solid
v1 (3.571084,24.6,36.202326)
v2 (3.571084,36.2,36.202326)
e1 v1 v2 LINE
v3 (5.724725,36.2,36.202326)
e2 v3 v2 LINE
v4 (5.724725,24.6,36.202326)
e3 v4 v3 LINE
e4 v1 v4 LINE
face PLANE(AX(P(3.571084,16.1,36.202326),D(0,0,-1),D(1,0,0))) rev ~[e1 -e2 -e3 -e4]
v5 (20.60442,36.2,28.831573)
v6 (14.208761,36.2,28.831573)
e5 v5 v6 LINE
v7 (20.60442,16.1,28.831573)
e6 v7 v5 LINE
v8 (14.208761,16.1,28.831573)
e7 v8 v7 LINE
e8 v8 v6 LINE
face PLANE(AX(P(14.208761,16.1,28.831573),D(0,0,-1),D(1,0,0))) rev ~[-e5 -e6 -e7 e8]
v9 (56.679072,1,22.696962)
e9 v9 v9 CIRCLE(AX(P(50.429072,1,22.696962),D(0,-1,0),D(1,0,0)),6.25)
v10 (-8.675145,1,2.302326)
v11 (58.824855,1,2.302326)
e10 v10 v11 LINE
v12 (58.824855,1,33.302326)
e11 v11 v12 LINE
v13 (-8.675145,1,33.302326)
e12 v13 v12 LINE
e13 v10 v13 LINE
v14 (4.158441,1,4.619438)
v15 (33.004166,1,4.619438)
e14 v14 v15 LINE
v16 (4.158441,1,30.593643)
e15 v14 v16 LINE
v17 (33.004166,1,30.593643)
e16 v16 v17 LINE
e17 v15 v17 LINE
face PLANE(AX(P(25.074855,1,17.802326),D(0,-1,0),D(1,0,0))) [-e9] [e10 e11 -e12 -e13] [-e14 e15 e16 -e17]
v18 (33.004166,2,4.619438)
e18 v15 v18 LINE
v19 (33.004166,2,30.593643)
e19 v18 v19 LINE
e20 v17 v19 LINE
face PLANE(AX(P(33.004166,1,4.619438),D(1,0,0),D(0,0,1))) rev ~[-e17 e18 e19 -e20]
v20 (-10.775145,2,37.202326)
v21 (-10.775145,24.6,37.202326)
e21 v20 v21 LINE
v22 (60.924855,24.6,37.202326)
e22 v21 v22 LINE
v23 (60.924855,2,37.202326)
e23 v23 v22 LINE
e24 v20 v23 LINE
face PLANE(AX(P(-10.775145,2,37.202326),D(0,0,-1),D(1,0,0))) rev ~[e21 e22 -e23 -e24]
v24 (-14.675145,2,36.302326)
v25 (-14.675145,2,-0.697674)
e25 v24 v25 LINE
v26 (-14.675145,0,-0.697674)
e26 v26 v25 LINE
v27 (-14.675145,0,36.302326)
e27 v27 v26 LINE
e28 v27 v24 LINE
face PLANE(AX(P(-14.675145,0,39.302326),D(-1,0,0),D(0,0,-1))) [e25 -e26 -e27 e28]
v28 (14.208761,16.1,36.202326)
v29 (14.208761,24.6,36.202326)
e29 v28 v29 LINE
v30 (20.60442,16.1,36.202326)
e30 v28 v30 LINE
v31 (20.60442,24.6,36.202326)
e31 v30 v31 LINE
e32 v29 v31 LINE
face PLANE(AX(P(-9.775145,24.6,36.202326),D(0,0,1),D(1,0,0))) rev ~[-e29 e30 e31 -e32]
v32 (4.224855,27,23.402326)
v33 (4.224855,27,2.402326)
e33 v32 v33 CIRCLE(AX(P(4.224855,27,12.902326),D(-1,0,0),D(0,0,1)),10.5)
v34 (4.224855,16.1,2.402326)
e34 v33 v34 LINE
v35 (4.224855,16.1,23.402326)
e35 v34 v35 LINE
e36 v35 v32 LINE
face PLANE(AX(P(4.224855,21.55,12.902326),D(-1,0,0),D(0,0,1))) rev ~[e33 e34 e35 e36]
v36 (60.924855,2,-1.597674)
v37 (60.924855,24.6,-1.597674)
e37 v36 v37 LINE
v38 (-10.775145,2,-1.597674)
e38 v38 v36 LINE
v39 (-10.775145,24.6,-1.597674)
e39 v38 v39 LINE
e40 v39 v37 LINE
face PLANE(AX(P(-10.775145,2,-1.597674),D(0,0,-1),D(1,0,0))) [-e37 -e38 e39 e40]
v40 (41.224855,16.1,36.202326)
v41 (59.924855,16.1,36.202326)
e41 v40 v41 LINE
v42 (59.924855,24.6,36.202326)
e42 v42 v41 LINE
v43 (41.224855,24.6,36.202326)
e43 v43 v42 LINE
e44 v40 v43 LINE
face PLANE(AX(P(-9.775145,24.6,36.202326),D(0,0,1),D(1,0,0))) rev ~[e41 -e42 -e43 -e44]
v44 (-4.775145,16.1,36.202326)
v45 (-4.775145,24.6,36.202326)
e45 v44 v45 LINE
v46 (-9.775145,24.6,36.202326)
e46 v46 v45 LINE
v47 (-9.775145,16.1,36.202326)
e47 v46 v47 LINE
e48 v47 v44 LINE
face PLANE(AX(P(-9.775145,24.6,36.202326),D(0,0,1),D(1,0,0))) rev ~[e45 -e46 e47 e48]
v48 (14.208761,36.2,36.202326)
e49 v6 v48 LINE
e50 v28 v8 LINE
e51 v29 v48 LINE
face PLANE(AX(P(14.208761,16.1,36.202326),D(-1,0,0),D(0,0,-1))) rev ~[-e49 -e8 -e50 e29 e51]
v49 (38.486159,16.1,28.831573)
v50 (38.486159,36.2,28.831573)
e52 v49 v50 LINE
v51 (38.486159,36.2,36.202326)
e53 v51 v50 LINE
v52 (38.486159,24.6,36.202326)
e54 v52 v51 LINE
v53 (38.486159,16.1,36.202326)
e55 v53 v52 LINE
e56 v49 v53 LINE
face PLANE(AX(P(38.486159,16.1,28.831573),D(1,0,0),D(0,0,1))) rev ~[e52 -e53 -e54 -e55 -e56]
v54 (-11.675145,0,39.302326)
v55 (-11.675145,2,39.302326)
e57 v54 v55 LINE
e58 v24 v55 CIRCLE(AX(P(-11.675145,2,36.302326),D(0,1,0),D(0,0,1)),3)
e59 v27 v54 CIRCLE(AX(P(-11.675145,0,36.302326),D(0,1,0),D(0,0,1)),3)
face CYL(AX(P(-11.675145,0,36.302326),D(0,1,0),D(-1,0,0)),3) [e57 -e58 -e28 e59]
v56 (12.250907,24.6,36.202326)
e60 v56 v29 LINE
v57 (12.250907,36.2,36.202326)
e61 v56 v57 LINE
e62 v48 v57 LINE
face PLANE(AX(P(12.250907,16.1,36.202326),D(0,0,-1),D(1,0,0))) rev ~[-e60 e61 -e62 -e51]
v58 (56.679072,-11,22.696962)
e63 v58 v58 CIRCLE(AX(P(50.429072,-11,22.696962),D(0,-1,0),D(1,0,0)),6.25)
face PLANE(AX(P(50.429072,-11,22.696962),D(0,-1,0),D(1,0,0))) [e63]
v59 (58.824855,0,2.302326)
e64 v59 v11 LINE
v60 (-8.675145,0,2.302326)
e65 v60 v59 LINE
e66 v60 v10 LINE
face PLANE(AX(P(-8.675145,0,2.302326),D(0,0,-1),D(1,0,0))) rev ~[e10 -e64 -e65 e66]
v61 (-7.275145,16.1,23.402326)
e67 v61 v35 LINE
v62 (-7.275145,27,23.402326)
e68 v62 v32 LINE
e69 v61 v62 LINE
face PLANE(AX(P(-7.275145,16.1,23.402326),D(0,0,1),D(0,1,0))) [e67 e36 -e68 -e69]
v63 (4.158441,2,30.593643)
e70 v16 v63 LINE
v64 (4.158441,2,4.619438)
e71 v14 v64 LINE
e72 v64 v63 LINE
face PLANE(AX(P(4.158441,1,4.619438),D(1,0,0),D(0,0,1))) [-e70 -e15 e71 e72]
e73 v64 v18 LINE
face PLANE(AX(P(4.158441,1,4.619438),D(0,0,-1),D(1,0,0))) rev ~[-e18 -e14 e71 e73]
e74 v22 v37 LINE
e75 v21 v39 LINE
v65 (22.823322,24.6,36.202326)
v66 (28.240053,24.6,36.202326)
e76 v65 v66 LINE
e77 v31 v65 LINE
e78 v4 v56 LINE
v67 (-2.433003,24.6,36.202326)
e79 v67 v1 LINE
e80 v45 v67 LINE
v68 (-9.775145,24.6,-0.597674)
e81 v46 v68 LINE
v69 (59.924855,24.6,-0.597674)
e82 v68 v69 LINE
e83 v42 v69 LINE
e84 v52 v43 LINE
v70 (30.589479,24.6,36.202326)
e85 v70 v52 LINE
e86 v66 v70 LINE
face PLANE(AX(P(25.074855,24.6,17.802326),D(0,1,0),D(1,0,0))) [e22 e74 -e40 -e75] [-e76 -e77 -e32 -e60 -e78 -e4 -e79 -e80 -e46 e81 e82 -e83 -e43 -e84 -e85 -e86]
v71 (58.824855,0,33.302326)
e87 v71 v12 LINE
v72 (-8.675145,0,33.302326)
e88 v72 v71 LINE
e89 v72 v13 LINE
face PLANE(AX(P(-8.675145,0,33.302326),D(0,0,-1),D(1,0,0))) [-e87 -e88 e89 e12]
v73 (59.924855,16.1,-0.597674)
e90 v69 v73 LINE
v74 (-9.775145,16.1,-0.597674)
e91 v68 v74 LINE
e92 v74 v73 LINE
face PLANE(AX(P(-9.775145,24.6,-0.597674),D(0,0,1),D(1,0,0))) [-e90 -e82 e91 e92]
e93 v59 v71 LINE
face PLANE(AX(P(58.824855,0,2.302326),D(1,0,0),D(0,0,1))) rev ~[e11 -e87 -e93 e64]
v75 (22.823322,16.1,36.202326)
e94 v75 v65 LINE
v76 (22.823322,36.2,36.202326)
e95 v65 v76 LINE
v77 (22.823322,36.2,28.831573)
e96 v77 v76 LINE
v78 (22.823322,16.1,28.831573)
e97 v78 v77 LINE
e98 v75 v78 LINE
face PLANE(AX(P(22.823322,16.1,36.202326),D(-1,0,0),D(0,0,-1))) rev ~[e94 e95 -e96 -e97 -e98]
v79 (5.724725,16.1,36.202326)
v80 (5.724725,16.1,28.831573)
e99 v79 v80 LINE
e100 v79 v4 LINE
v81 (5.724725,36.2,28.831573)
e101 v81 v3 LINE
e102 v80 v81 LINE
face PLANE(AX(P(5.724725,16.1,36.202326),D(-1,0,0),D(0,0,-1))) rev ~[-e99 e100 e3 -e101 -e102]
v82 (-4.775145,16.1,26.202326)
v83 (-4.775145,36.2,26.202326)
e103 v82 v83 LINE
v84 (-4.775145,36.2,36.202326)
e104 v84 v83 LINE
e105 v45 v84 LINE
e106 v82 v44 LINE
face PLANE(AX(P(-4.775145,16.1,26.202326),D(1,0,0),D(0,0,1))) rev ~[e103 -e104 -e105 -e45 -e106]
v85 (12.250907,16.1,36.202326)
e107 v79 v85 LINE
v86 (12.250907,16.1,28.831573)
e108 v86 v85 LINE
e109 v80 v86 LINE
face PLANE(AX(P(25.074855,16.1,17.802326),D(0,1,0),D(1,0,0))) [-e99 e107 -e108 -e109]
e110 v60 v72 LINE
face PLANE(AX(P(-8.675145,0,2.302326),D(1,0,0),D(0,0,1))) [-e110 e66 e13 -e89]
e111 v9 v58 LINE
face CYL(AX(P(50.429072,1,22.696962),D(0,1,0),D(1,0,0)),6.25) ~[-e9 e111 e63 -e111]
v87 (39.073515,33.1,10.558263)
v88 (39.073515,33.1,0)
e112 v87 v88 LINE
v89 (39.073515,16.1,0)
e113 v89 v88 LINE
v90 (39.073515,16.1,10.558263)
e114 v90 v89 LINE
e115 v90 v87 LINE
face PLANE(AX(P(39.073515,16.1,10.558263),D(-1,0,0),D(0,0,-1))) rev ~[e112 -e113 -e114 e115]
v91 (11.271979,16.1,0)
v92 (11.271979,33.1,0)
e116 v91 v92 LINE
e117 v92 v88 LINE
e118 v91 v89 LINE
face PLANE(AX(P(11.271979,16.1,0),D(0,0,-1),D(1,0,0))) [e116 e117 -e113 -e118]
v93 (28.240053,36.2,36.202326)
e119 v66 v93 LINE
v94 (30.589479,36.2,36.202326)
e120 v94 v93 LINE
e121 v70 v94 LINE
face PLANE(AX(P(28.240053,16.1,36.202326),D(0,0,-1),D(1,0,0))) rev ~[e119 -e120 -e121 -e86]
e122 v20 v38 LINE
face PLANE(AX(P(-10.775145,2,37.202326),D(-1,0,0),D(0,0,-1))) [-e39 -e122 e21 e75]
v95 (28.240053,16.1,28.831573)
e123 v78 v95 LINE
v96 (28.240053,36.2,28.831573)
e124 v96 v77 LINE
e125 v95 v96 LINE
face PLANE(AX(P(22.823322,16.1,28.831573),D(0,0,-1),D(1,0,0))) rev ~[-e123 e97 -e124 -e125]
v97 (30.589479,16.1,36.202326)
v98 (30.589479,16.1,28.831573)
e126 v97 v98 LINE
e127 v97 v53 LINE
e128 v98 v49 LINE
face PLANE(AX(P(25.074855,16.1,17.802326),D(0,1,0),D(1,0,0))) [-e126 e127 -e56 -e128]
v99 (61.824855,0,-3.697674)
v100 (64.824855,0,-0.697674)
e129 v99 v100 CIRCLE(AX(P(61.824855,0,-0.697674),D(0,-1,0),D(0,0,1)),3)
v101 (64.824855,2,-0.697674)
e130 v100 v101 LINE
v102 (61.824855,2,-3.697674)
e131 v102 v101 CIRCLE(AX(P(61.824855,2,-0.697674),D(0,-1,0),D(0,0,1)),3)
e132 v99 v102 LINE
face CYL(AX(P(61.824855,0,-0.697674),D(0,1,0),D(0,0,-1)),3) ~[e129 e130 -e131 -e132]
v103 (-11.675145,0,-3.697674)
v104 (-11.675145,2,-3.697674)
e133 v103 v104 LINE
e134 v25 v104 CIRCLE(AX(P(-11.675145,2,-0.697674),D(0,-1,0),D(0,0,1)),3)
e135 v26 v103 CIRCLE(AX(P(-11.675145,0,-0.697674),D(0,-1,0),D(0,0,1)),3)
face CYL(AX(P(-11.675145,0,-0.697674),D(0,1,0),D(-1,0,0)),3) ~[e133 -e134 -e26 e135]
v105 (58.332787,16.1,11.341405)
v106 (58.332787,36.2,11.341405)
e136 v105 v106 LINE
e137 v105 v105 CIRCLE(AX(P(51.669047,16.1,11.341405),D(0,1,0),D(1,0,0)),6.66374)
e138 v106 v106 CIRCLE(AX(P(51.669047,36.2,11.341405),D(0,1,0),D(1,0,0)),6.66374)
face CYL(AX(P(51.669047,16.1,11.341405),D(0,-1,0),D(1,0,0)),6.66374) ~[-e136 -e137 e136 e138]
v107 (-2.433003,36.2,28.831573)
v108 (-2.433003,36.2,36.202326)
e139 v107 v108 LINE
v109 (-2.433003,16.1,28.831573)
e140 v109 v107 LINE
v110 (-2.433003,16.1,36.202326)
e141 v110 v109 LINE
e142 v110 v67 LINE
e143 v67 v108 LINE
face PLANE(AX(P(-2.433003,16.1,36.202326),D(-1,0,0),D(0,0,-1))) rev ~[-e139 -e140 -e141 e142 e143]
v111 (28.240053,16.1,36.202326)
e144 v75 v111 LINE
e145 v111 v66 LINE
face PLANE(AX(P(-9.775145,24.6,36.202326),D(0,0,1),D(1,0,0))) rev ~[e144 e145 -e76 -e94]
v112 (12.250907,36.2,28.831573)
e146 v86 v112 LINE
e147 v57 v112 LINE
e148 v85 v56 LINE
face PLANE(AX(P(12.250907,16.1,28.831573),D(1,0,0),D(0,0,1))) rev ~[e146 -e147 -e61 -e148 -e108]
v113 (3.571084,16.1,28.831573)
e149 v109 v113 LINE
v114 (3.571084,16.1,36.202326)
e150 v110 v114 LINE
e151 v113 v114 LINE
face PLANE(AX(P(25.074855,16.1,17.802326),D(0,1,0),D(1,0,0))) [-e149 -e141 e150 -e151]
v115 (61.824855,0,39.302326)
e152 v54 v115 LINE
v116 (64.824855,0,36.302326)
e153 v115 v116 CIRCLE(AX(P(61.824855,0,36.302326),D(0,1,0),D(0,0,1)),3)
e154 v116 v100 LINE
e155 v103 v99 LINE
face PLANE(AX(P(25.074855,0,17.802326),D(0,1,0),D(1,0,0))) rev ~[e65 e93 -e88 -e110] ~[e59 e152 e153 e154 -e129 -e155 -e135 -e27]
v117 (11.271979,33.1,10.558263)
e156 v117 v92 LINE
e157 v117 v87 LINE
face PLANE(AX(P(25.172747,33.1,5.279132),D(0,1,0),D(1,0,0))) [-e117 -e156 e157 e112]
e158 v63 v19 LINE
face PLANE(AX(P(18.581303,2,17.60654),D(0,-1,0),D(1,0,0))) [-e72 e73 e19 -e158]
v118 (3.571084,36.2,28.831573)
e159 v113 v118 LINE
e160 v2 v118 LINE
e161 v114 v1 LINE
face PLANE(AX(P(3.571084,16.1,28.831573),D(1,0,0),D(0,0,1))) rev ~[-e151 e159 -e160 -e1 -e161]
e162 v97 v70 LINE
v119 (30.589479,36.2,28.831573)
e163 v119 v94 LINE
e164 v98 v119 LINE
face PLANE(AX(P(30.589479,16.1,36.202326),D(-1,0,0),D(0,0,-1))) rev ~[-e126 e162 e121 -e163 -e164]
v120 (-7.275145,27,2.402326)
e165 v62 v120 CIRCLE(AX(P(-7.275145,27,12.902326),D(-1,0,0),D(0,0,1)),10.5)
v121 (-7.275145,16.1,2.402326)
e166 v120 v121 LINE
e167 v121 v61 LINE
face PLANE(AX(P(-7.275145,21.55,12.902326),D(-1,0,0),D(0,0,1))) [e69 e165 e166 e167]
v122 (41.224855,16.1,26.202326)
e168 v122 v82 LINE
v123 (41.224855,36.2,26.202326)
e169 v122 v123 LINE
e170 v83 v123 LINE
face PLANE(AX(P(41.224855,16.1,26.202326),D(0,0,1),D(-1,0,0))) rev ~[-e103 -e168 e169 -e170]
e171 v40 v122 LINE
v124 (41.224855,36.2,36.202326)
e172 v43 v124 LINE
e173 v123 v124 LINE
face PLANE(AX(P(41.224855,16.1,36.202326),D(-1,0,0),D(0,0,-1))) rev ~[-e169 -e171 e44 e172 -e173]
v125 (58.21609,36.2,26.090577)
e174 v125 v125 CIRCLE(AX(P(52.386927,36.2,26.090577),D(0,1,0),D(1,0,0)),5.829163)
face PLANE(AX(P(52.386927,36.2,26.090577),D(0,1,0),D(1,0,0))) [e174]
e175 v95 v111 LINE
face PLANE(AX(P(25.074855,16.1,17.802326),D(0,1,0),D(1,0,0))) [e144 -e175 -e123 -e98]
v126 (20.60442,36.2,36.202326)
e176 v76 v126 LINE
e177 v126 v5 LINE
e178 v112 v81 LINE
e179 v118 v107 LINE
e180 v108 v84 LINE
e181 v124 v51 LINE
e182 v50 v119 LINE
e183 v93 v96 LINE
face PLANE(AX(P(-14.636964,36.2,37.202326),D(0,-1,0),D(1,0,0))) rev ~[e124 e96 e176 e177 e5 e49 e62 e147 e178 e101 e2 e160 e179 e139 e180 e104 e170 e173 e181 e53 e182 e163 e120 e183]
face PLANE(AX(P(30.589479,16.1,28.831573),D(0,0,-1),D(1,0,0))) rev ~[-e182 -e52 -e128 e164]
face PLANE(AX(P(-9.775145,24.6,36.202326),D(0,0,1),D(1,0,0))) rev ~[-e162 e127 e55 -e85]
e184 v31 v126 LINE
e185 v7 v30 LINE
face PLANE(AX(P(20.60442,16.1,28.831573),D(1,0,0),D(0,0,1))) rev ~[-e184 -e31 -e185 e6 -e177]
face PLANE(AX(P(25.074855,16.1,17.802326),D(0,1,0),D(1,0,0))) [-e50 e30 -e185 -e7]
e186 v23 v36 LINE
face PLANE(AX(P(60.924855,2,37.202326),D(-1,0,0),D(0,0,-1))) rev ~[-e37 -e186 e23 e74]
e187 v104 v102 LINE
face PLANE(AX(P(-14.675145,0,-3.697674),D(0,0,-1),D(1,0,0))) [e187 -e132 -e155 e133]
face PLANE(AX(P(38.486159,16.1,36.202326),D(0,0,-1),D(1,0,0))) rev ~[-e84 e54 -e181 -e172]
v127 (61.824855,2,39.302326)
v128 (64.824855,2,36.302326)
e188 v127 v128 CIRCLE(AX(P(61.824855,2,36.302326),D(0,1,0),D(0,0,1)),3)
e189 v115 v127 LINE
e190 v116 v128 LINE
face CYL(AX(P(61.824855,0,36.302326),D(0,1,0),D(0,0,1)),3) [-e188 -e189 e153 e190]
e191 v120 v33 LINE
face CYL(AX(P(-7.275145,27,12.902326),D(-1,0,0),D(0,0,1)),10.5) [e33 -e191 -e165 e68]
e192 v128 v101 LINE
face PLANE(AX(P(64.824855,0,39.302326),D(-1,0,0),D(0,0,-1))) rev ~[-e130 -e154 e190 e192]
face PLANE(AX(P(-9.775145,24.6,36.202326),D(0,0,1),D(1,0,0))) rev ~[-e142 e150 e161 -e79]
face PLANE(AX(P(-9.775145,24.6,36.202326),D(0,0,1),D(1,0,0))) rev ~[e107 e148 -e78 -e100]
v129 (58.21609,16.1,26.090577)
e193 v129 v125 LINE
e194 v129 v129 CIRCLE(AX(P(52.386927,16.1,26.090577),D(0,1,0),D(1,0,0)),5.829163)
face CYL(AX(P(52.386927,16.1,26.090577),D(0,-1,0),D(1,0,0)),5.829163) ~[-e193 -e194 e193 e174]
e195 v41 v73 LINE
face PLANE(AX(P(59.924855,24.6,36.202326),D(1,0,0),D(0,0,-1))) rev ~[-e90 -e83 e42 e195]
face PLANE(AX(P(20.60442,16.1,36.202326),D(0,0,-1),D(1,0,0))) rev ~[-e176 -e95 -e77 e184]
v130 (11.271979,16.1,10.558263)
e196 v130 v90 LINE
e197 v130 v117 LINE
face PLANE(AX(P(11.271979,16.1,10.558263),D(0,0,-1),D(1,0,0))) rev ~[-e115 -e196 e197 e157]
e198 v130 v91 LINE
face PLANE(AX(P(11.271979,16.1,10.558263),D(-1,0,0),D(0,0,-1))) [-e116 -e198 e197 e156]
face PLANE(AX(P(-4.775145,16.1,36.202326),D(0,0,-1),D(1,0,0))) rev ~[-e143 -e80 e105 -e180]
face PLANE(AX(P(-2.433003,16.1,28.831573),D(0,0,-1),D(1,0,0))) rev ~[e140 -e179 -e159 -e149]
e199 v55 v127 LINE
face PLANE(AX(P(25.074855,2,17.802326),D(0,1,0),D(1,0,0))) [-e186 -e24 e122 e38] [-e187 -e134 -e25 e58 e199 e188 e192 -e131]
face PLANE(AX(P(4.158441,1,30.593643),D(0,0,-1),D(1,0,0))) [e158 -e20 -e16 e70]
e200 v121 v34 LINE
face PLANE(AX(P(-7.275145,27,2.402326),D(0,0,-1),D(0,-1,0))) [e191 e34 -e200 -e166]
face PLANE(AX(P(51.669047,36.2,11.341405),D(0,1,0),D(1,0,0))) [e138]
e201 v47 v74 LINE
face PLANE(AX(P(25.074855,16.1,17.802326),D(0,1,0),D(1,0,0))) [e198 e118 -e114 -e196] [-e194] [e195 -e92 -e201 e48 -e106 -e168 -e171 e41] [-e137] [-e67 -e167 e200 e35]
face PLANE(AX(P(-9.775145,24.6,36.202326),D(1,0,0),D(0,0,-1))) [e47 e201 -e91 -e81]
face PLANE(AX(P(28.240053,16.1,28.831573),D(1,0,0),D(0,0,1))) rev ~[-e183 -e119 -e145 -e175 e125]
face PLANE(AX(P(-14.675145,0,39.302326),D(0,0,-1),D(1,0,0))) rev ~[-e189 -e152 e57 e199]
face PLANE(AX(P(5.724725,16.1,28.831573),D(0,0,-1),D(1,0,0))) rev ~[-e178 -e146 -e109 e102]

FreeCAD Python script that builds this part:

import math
import FreeCAD as App
import Part
import Sketcher
from FreeCAD import Vector
Q = App.Units.Quantity


def edges_at(feature, points):
    """Names of the edges that pass closest to the given points."""
    edges = feature.Shape.Edges
    near = lambda p: min(range(len(edges)), key=lambda i: edges[i].distToShape(Part.Vertex(*p))[0])
    return sorted({f"Edge{near(p) + 1}" for p in points})

doc = App.newDocument("Part")
body = doc.addObject("PartDesign::Body", "Body")

# Sketch on XZ plane
sketch1 = body.newObject("Sketcher::SketchObject", "Sketch")
sketch1.AttachmentSupport = (doc.getObject("XZ_Plane"), [""])
sketch1.MapMode = "FlatFace"
sketch1.addGeometry(Part.LineSegment(Vector(-14.675145, -3.697674, 0), Vector(-14.675145, 39.302326, 0)), False)
sketch1.addGeometry(Part.LineSegment(Vector(-14.675145, 39.302326, 0), Vector(64.824855, 39.302326, 0)), False)
sketch1.addGeometry(Part.LineSegment(Vector(64.824855, 39.302326, 0), Vector(64.824855, -3.697674, 0)), False)
sketch1.addGeometry(Part.LineSegment(Vector(64.824855, -3.697674, 0), Vector(-14.675145, -3.697674, 0)), False)
sketch1.addConstraint(Sketcher.Constraint("Coincident", 0, 2, 1, 1))
sketch1.addConstraint(Sketcher.Constraint("Coincident", 1, 2, 2, 1))
sketch1.addConstraint(Sketcher.Constraint("Coincident", 2, 2, 3, 1))
sketch1.addConstraint(Sketcher.Constraint("Coincident", 3, 2, 0, 1))
sketch1.addConstraint(Sketcher.Constraint("Vertical", 0))
sketch1.addConstraint(Sketcher.Constraint("Horizontal", 1))
sketch1.addConstraint(Sketcher.Constraint("Vertical", 2))
sketch1.addConstraint(Sketcher.Constraint("Horizontal", 3))
sketch1.addConstraint(Sketcher.Constraint("DistanceY", 0, 1, 0, 2, Q("43 mm")))
sketch1.addConstraint(Sketcher.Constraint("DistanceX", 1, 1, 1, 2, Q("79.5 mm")))
sketch1.addConstraint(Sketcher.Constraint("DistanceX", 0, 2, -1, 1, Q("14.675145 mm")))
sketch1.addConstraint(Sketcher.Constraint("DistanceY", -1, 1, 0, 2, Q("39.302326 mm")))
pad1 = body.newObject("PartDesign::Pad", "Pad")
pad1.Profile = sketch1
pad1.Length = 2
pad1.Reversed = True

# Sketch on XZ plane
sketch2 = body.newObject("Sketcher::SketchObject", "Sketch001")
sketch2.AttachmentSupport = (doc.getObject("XZ_Plane"), [""])
sketch2.MapMode = "FlatFace"
sketch2.AttachmentOffset = App.Placement(Vector(0, 0, -2), App.Rotation())
sketch2.addGeometry(Part.LineSegment(Vector(-10.775145, -1.597674, 0), Vector(-10.775145, 37.202326, 0)), False)
sketch2.addGeometry(Part.LineSegment(Vector(-10.775145, 37.202326, 0), Vector(60.924855, 37.202326, 0)), False)
sketch2.addGeometry(Part.LineSegment(Vector(60.924855, 37.202326, 0), Vector(60.924855, -1.597674, 0)), False)
sketch2.addGeometry(Part.LineSegment(Vector(60.924855, -1.597674, 0), Vector(-10.775145, -1.597674, 0)), False)
sketch2.addConstraint(Sketcher.Constraint("Coincident", 0, 2, 1, 1))
sketch2.addConstraint(Sketcher.Constraint("Coincident", 1, 2, 2, 1))
sketch2.addConstraint(Sketcher.Constraint("Coincident", 2, 2, 3, 1))
sketch2.addConstraint(Sketcher.Constraint("Coincident", 3, 2, 0, 1))
sketch2.addConstraint(Sketcher.Constraint("Vertical", 0))
sketch2.addConstraint(Sketcher.Constraint("Horizontal", 1))
sketch2.addConstraint(Sketcher.Constraint("Vertical", 2))
sketch2.addConstraint(Sketcher.Constraint("Horizontal", 3))
sketch2.addConstraint(Sketcher.Constraint("DistanceX", 1, 1, 1, 2, Q("71.7 mm")))
sketch2.addConstraint(Sketcher.Constraint("DistanceY", 0, 1, 0, 2, Q("38.8 mm")))
sketch2.addConstraint(Sketcher.Constraint("DistanceX", 0, 2, -1, 1, Q("10.775145 mm")))
sketch2.addConstraint(Sketcher.Constraint("DistanceY", -1, 1, 0, 2, Q("37.202326 mm")))
pad2 = body.newObject("PartDesign::Pad", "Pad001")
pad2.Profile = sketch2
pad2.Length = 22.6
pad2.Reversed = True

# Sketch on XZ plane
sketch3 = body.newObject("Sketcher::SketchObject", "Sketch002")
sketch3.AttachmentSupport = (doc.getObject("XZ_Plane"), [""])
sketch3.MapMode = "FlatFace"
sketch3.AttachmentOffset = App.Placement(Vector(0, 0, -24.6), App.Rotation())
sketch3.addGeometry(Part.LineSegment(Vector(-9.775145, -0.597674, 0), Vector(-9.775145, 36.202326, 0)), False)
sketch3.addGeometry(Part.LineSegment(Vector(-9.775145, 36.202326, 0), Vector(59.924855, 36.202326, 0)), False)
sketch3.addGeometry(Part.LineSegment(Vector(59.924855, 36.202326, 0), Vector(59.924855, -0.597674, 0)), False)
sketch3.addGeometry(Part.LineSegment(Vector(59.924855, -0.597674, 0), Vector(-9.775145, -0.597674, 0)), False)
sketch3.addConstraint(Sketcher.Constraint("Coincident", 0, 2, 1, 1))
sketch3.addConstraint(Sketcher.Constraint("Coincident", 1, 2, 2, 1))
sketch3.addConstraint(Sketcher.Constraint("Coincident", 2, 2, 3, 1))
sketch3.addConstraint(Sketcher.Constraint("Coincident", 3, 2, 0, 1))
sketch3.addConstraint(Sketcher.Constraint("Vertical", 0))
sketch3.addConstraint(Sketcher.Constraint("Horizontal", 1))
sketch3.addConstraint(Sketcher.Constraint("Vertical", 2))
sketch3.addConstraint(Sketcher.Constraint("Horizontal", 3))
sketch3.addConstraint(Sketcher.Constraint("DistanceX", 1, 1, 1, 2, Q("69.7 mm")))
sketch3.addConstraint(Sketcher.Constraint("DistanceY", 0, 1, 0, 2, Q("36.8 mm")))
sketch3.addConstraint(Sketcher.Constraint("DistanceX", 0, 2, -1, 1, Q("9.775145 mm")))
sketch3.addConstraint(Sketcher.Constraint("DistanceY", -1, 1, 0, 2, Q("36.202326 mm")))
pocket1 = body.newObject("PartDesign::Pocket", "Pocket")
pocket1.Profile = sketch3
pocket1.Length = 8.5
pocket1.Reversed = True

# Sketch on XZ plane
sketch4 = body.newObject("Sketcher::SketchObject", "Sketch003")
sketch4.AttachmentSupport = (doc.getObject("XZ_Plane"), [""])
sketch4.MapMode = "FlatFace"
sketch4.AttachmentOffset = App.Placement(Vector(0, 0, -16.1), App.Rotation())
sketch4.addGeometry(Part.LineSegment(Vector(41.224855, 26.202326, 0), Vector(-4.775145, 26.202326, 0)), False)
sketch4.addGeometry(Part.LineSegment(Vector(-4.775145, 26.202326, 0), Vector(-4.775145, 36.202326, 0)), False)
sketch4.addGeometry(Part.LineSegment(Vector(-4.775145, 36.202326, 0), Vector(-2.433003, 36.202326, 0)), False)
sketch4.addGeometry(Part.LineSegment(Vector(-2.433003, 36.202326, 0), Vector(-2.433003, 28.831573, 0)), False)
sketch4.addGeometry(Part.LineSegment(Vector(-2.433003, 28.831573, 0), Vector(3.571084, 28.831573, 0)), False)
sketch4.addGeometry(Part.LineSegment(Vector(3.571084, 28.831573, 0), Vector(3.571084, 36.202326, 0)), False)
sketch4.addGeometry(Part.LineSegment(Vector(3.571084, 36.202326, 0), Vector(5.724725, 36.202326, 0)), False)
sketch4.addGeometry(Part.LineSegment(Vector(5.724725, 36.202326, 0), Vector(5.724725, 28.831573, 0)), False)
sketch4.addGeometry(Part.LineSegment(Vector(5.724725, 28.831573, 0), Vector(12.250907, 28.831573, 0)), False)
sketch4.addGeometry(Part.LineSegment(Vector(12.250907, 28.831573, 0), Vector(12.250907, 36.202326, 0)), False)
sketch4.addGeometry(Part.LineSegment(Vector(12.250907, 36.202326, 0), Vector(14.208761, 36.202326, 0)), False)
sketch4.addGeometry(Part.LineSegment(Vector(14.208761, 36.202326, 0), Vector(14.208761, 28.831573, 0)), False)
sketch4.addGeometry(Part.LineSegment(Vector(14.208761, 28.831573, 0), Vector(20.60442, 28.831573, 0)), False)
sketch4.addGeometry(Part.LineSegment(Vector(20.60442, 28.831573, 0), Vector(20.60442, 36.202326, 0)), False)
sketch4.addGeometry(Part.LineSegment(Vector(20.60442, 36.202326, 0), Vector(22.823322, 36.202326, 0)), False)
sketch4.addGeometry(Part.LineSegment(Vector(22.823322, 36.202326, 0), Vector(22.823322, 28.831573, 0)), False)
sketch4.addGeometry(Part.LineSegment(Vector(22.823322, 28.831573, 0), Vector(28.240053, 28.831573, 0)), False)
sketch4.addGeometry(Part.LineSegment(Vector(28.240053, 28.831573, 0), Vector(28.240053, 36.202326, 0)), False)
sketch4.addGeometry(Part.LineSegment(Vector(28.240053, 36.202326, 0), Vector(30.589479, 36.202326, 0)), False)
sketch4.addGeometry(Part.LineSegment(Vector(30.589479, 36.202326, 0), Vector(30.589479, 28.831573, 0)), False)
sketch4.addGeometry(Part.LineSegment(Vector(30.589479, 28.831573, 0), Vector(38.486159, 28.831573, 0)), False)
sketch4.addGeometry(Part.LineSegment(Vector(38.486159, 28.831573, 0), Vector(38.486159, 36.202326, 0)), False)
sketch4.addGeometry(Part.LineSegment(Vector(38.486159, 36.202326, 0), Vector(41.224855, 36.202326, 0)), False)
sketch4.addGeometry(Part.LineSegment(Vector(41.224855, 36.202326, 0), Vector(41.224855, 26.202326, 0)), False)
sketch4.addConstraint(Sketcher.Constraint("Coincident", 0, 2, 1, 1))
sketch4.addConstraint(Sketcher.Constraint("Coincident", 1, 2, 2, 1))
sketch4.addConstraint(Sketcher.Constraint("Coincident", 2, 2, 3, 1))
sketch4.addConstraint(Sketcher.Constraint("Coincident", 3, 2, 4, 1))
sketch4.addConstraint(Sketcher.Constraint("Coincident", 4, 2, 5, 1))
sketch4.addConstraint(Sketcher.Constraint("Coincident", 5, 2, 6, 1))
sketch4.addConstraint(Sketcher.Constraint("Coincident", 6, 2, 7, 1))
sketch4.addConstraint(Sketcher.Constraint("Coincident", 7, 2, 8, 1))
sketch4.addConstraint(Sketcher.Constraint("Coincident", 8, 2, 9, 1))
sketch4.addConstraint(Sketcher.Constraint("Coincident", 9, 2, 10, 1))
sketch4.addConstraint(Sketcher.Constraint("Coincident", 10, 2, 11, 1))
sketch4.addConstraint(Sketcher.Constraint("Coincident", 11, 2, 12, 1))
sketch4.addConstraint(Sketcher.Constraint("Coincident", 12, 2, 13, 1))
sketch4.addConstraint(Sketcher.Constraint("Coincident", 13, 2, 14, 1))
sketch4.addConstraint(Sketcher.Constraint("Coincident", 14, 2, 15, 1))
sketch4.addConstraint(Sketcher.Constraint("Coincident", 15, 2, 16, 1))
sketch4.addConstraint(Sketcher.Constraint("Coincident", 16, 2, 17, 1))
sketch4.addConstraint(Sketcher.Constraint("Coincident", 17, 2, 18, 1))
sketch4.addConstraint(Sketcher.Constraint("Coincident", 18, 2, 19, 1))
sketch4.addConstraint(Sketcher.Constraint("Coincident", 19, 2, 20, 1))
sketch4.addConstraint(Sketcher.Constraint("Coincident", 20, 2, 21, 1))
sketch4.addConstraint(Sketcher.Constraint("Coincident", 21, 2, 22, 1))
sketch4.addConstraint(Sketcher.Constraint("Coincident", 22, 2, 23, 1))
sketch4.addConstraint(Sketcher.Constraint("Coincident", 23, 2, 0, 1))
sketch4.addConstraint(Sketcher.Constraint("Horizontal", 0))
sketch4.addConstraint(Sketcher.Constraint("Vertical", 1))
sketch4.addConstraint(Sketcher.Constraint("Horizontal", 2))
sketch4.addConstraint(Sketcher.Constraint("Vertical", 3))
sketch4.addConstraint(Sketcher.Constraint("Horizontal", 4))
sketch4.addConstraint(Sketcher.Constraint("Vertical", 5))
sketch4.addConstraint(Sketcher.Constraint("Horizontal", 6))
sketch4.addConstraint(Sketcher.Constraint("Vertical", 7))
sketch4.addConstraint(Sketcher.Constraint("Horizontal", 8))
sketch4.addConstraint(Sketcher.Constraint("Vertical", 9))
sketch4.addConstraint(Sketcher.Constraint("Horizontal", 10))
sketch4.addConstraint(Sketcher.Constraint("Vertical", 11))
sketch4.addConstraint(Sketcher.Constraint("Horizontal", 12))
sketch4.addConstraint(Sketcher.Constraint("Vertical", 13))
sketch4.addConstraint(Sketcher.Constraint("Horizontal", 14))
sketch4.addConstraint(Sketcher.Constraint("Vertical", 15))
sketch4.addConstraint(Sketcher.Constraint("Horizontal", 16))
sketch4.addConstraint(Sketcher.Constraint("Vertical", 17))
sketch4.addConstraint(Sketcher.Constraint("Horizontal", 18))
sketch4.addConstraint(Sketcher.Constraint("Vertical", 19))
sketch4.addConstraint(Sketcher.Constraint("Horizontal", 20))
sketch4.addConstraint(Sketcher.Constraint("Vertical", 21))
sketch4.addConstraint(Sketcher.Constraint("Horizontal", 22))
sketch4.addConstraint(Sketcher.Constraint("Vertical", 23))
sketch4.addConstraint(Sketcher.Constraint("Horizontal", 2, 2, 5, 2))
sketch4.addConstraint(Sketcher.Constraint("Horizontal", 4, 2, 7, 2))
sketch4.addConstraint(Sketcher.Constraint("Horizontal", 6, 2, 9, 2))
sketch4.addConstraint(Sketcher.Constraint("Horizontal", 8, 2, 11, 2))
sketch4.addConstraint(Sketcher.Constraint("Horizontal", 10, 2, 13, 2))
sketch4.addConstraint(Sketcher.Constraint("Horizontal", 12, 2, 15, 2))
sketch4.addConstraint(Sketcher.Constraint("Horizontal", 14, 2, 17, 2))
sketch4.addConstraint(Sketcher.Constraint("Horizontal", 16, 2, 19, 2))
sketch4.addConstraint(Sketcher.Constraint("Horizontal", 18, 2, 21, 2))
sketch4.addConstraint(Sketcher.Constraint("DistanceX", 0, 2, 0, 1, Q("46 mm")))
sketch4.addConstraint(Sketcher.Constraint("DistanceY", 1, 1, 1, 2, Q("10 mm")))
sketch4.addConstraint(Sketcher.Constraint("DistanceX", 14, 1, 14, 2, Q("2.218902 mm")))
sketch4.addConstraint(Sketcher.Constraint("DistanceX", 6, 1, 6, 2, Q("2.15364 mm")))
sketch4.addConstraint(Sketcher.Constraint("DistanceX", 12, 1, 12, 2, Q("6.395659 mm")))
sketch4.addConstraint(Sketcher.Constraint("DistanceX", 16, 1, 16, 2, Q("5.416731 mm")))
sketch4.addConstraint(Sketcher.Constraint("DistanceX", 20, 1, 20, 2, Q("7.89668 mm")))
sketch4.addConstraint(Sketcher.Constraint("DistanceX", 17, 2, 22, 2, Q("12.984802 mm")))
sketch4.addConstraint(Sketcher.Constraint("DistanceX", 2, 1, 2, 2, Q("2.342142 mm")))
sketch4.addConstraint(Sketcher.Constraint("DistanceX", 4, 1, 4, 2, Q("6.004088 mm")))
sketch4.addConstraint(Sketcher.Constraint("DistanceX", 8, 1, 8, 2, Q("6.526182 mm")))
sketch4.addConstraint(Sketcher.Constraint("DistanceX", 18, 1, 18, 2, Q("2.349426 mm")))
sketch4.addConstraint(Sketcher.Constraint("DistanceY", 3, 2, 3, 1, Q("7.370752 mm")))
sketch4.addConstraint(Sketcher.Constraint("DistanceX", -1, 1, 10, 2, Q("14.208761 mm")))
sketch4.addConstraint(Sketcher.Constraint("DistanceY", -1, 1, 0, 2, Q("26.202326 mm")))
pad3 = body.newObject("PartDesign::Pad", "Pad002")
pad3.Profile = sketch4
pad3.Length = 22.6
pad3.Reversed = True

# Sketch on XY plane
sketch5 = body.newObject("Sketcher::SketchObject", "Sketch004")
sketch5.AttachmentSupport = (doc.getObject("XY_Plane"), [""])
sketch5.MapMode = "FlatFace"
sketch5.AttachmentOffset = App.Placement(Vector(0, 0, 37.202326), App.Rotation())
sketch5.addGeometry(Part.LineSegment(Vector(-14.636964, 45.14087, 0), Vector(-14.636964, 36.2, 0)), False)
sketch5.addGeometry(Part.LineSegment(Vector(-14.636964, 36.2, 0), Vector(52.582712, 36.2, 0)), False)
sketch5.addGeometry(Part.LineSegment(Vector(52.582712, 36.2, 0), Vector(52.582712, 45.14087, 0)), False)
sketch5.addGeometry(Part.LineSegment(Vector(52.582712, 45.14087, 0), Vector(-14.636964, 45.14087, 0)), False)
sketch5.addConstraint(Sketcher.Constraint("Coincident", 0, 2, 1, 1))
sketch5.addConstraint(Sketcher.Constraint("Coincident", 1, 2, 2, 1))
sketch5.addConstraint(Sketcher.Constraint("Coincident", 2, 2, 3, 1))
sketch5.addConstraint(Sketcher.Constraint("Coincident", 3, 2, 0, 1))
sketch5.addConstraint(Sketcher.Constraint("Vertical", 0))
sketch5.addConstraint(Sketcher.Constraint("Horizontal", 1))
sketch5.addConstraint(Sketcher.Constraint("Vertical", 2))
sketch5.addConstraint(Sketcher.Constraint("Horizontal", 3))
sketch5.addConstraint(Sketcher.Constraint("DistanceY", -1, 1, 0, 2, Q("36.2 mm")))
sketch5.addConstraint(Sketcher.Constraint("DistanceY", 0, 2, 0, 1, Q("8.94087 mm")))
sketch5.addConstraint(Sketcher.Constraint("DistanceX", 1, 1, 1, 2, Q("67.219676 mm")))
sketch5.addConstraint(Sketcher.Constraint("DistanceX", 0, 2, -1, 1, Q("14.636964 mm")))
pocket2 = body.newObject("PartDesign::Pocket", "Pocket001")
pocket2.Profile = sketch5
pocket2.Length = 22.6

# Sketch on XZ plane
sketch6 = body.newObject("Sketcher::SketchObject", "Sketch005")
sketch6.AttachmentSupport = (doc.getObject("XZ_Plane"), [""])
sketch6.MapMode = "FlatFace"
sketch6.AttachmentOffset = App.Placement(Vector(0, 0, -16.1), App.Rotation())
sketch6.addGeometry(Part.Circle(Vector(51.669047, 11.341405, 0), Vector(0, 0, 1), 6.66374), False)
sketch6.addGeometry(Part.Circle(Vector(52.386927, 26.090577, 0), Vector(0, 0, 1), 5.829163), False)
sketch6.addConstraint(Sketcher.Constraint("Diameter", 0, Q("13.32748 mm")))
sketch6.addConstraint(Sketcher.Constraint("Diameter", 1, Q("11.658326 mm")))
sketch6.addConstraint(Sketcher.Constraint("DistanceX", 0, 3, 1, 3, Q("0.71788 mm")))
sketch6.addConstraint(Sketcher.Constraint("DistanceY", 0, 3, 1, 3, Q("14.749172 mm")))
sketch6.addConstraint(Sketcher.Constraint("DistanceX", -1, 1, 0, 3, Q("51.669047 mm")))
sketch6.addConstraint(Sketcher.Constraint("DistanceY", -1, 1, 0, 3, Q("11.341405 mm")))
pad4 = body.newObject("PartDesign::Pad", "Pad003")
pad4.Profile = sketch6
pad4.Length = 20.1
pad4.Reversed = True
doc.recompute()

fillet = body.newObject("PartDesign::Fillet", "Fillet")
fillet.Base = (pad4, edges_at(pad4, [
    (-14.675, 1, -3.698),
    (64.825, 1, -3.698),
    (64.825, 1, 39.302),
    (-14.675, 1, 39.302),
]))
fillet.Radius = 3

# Sketch on XZ plane
sketch7 = body.newObject("Sketcher::SketchObject", "Sketch006")
sketch7.AttachmentSupport = (doc.getObject("XZ_Plane"), [""])
sketch7.MapMode = "FlatFace"
sketch7.AttachmentOffset = App.Placement(Vector(0, 0, -16.1), App.Rotation())
sketch7.addGeometry(Part.LineSegment(Vector(11.271979, 0, 0), Vector(11.271979, 10.558263, 0)), False)
sketch7.addGeometry(Part.LineSegment(Vector(11.271979, 10.558263, 0), Vector(39.073515, 10.558263, 0)), False)
sketch7.addGeometry(Part.LineSegment(Vector(39.073515, 10.558263, 0), Vector(39.073515, 0, 0)), False)
sketch7.addGeometry(Part.LineSegment(Vector(39.073515, 0, 0), Vector(11.271979, 0, 0)), False)
sketch7.addConstraint(Sketcher.Constraint("Coincident", 0, 2, 1, 1))
sketch7.addConstraint(Sketcher.Constraint("Coincident", 1, 2, 2, 1))
sketch7.addConstraint(Sketcher.Constraint("Coincident", 2, 2, 3, 1))
sketch7.addConstraint(Sketcher.Constraint("Coincident", 3, 2, 0, 1))
sketch7.addConstraint(Sketcher.Constraint("Vertical", 0))
sketch7.addConstraint(Sketcher.Constraint("Horizontal", 1))
sketch7.addConstraint(Sketcher.Constraint("Vertical", 2))
sketch7.addConstraint(Sketcher.Constraint("Horizontal", 3))
sketch7.addConstraint(Sketcher.Constraint("PointOnObject", 2, 2, -1))
sketch7.addConstraint(Sketcher.Constraint("DistanceX", 1, 1, 1, 2, Q("27.801536 mm")))
sketch7.addConstraint(Sketcher.Constraint("DistanceY", 0, 1, 0, 2, Q("10.558263 mm")))
sketch7.addConstraint(Sketcher.Constraint("DistanceX", -1, 1, 0, 2, Q("11.271979 mm")))
pad5 = body.newObject("PartDesign::Pad", "Pad004")
pad5.Profile = sketch7
pad5.Length = 17
pad5.Reversed = True

# Sketch on XZ plane
sketch8 = body.newObject("Sketcher::SketchObject", "Sketch007")
sketch8.AttachmentSupport = (doc.getObject("XZ_Plane"), [""])
sketch8.MapMode = "FlatFace"
sketch8.addGeometry(Part.LineSegment(Vector(-8.675145, 33.302326, 0), Vector(-8.675145, 2.302326, 0)), False)
sketch8.addGeometry(Part.LineSegment(Vector(-8.675145, 2.302326, 0), Vector(58.824855, 2.302326, 0)), False)
sketch8.addGeometry(Part.LineSegment(Vector(58.824855, 2.302326, 0), Vector(58.824855, 33.302326, 0)), False)
sketch8.addGeometry(Part.LineSegment(Vector(58.824855, 33.302326, 0), Vector(-8.675145, 33.302326, 0)), False)
sketch8.addConstraint(Sketcher.Constraint("Coincident", 0, 2, 1, 1))
sketch8.addConstraint(Sketcher.Constraint("Coincident", 1, 2, 2, 1))
sketch8.addConstraint(Sketcher.Constraint("Coincident", 2, 2, 3, 1))
sketch8.addConstraint(Sketcher.Constraint("Coincident", 3, 2, 0, 1))
sketch8.addConstraint(Sketcher.Constraint("Vertical", 0))
sketch8.addConstraint(Sketcher.Constraint("Horizontal", 1))
sketch8.addConstraint(Sketcher.Constraint("Vertical", 2))
sketch8.addConstraint(Sketcher.Constraint("Horizontal", 3))
sketch8.addConstraint(Sketcher.Constraint("DistanceY", 0, 2, 0, 1, Q("31 mm")))
sketch8.addConstraint(Sketcher.Constraint("DistanceX", 1, 1, 1, 2, Q("67.5 mm")))
sketch8.addConstraint(Sketcher.Constraint("DistanceX", 0, 2, -1, 1, Q("8.675145 mm")))
sketch8.addConstraint(Sketcher.Constraint("DistanceY", -1, 1, 0, 2, Q("2.302326 mm")))
pocket3 = body.newObject("PartDesign::Pocket", "Pocket002")
pocket3.Profile = sketch8
pocket3.Length = 1

# Sketch on XZ plane
sketch9 = body.newObject("Sketcher::SketchObject", "Sketch008")
sketch9.AttachmentSupport = (doc.getObject("XZ_Plane"), [""])
sketch9.MapMode = "FlatFace"
sketch9.AttachmentOffset = App.Placement(Vector(0, 0, -1), App.Rotation())
sketch9.addGeometry(Part.LineSegment(Vector(4.158441, 30.593643, 0), Vector(4.158441, 4.619438, 0)), False)
sketch9.addGeometry(Part.LineSegment(Vector(4.158441, 4.619438, 0), Vector(33.004166, 4.619438, 0)), False)
sketch9.addGeometry(Part.LineSegment(Vector(33.004166, 4.619438, 0), Vector(33.004166, 30.593643, 0)), False)
sketch9.addGeometry(Part.LineSegment(Vector(33.004166, 30.593643, 0), Vector(4.158441, 30.593643, 0)), False)
sketch9.addConstraint(Sketcher.Constraint("Coincident", 0, 2, 1, 1))
sketch9.addConstraint(Sketcher.Constraint("Coincident", 1, 2, 2, 1))
sketch9.addConstraint(Sketcher.Constraint("Coincident", 2, 2, 3, 1))
sketch9.addConstraint(Sketcher.Constraint("Coincident", 3, 2, 0, 1))
sketch9.addConstraint(Sketcher.Constraint("Vertical", 0))
sketch9.addConstraint(Sketcher.Constraint("Horizontal", 1))
sketch9.addConstraint(Sketcher.Constraint("Vertical", 2))
sketch9.addConstraint(Sketcher.Constraint("Horizontal", 3))
sketch9.addConstraint(Sketcher.Constraint("DistanceX", 1, 1, 1, 2, Q("28.845725 mm")))
sketch9.addConstraint(Sketcher.Constraint("DistanceY", 0, 2, 0, 1, Q("25.974205 mm")))
sketch9.addConstraint(Sketcher.Constraint("DistanceX", -1, 1, 0, 2, Q("4.158441 mm")))
sketch9.addConstraint(Sketcher.Constraint("DistanceY", -1, 1, 0, 2, Q("4.619438 mm")))
pocket4 = body.newObject("PartDesign::Pocket", "Pocket003")
pocket4.Profile = sketch9
pocket4.Length = 1

# Sketch on XZ plane
sketch10 = body.newObject("Sketcher::SketchObject", "Sketch009")
sketch10.AttachmentSupport = (doc.getObject("XZ_Plane"), [""])
sketch10.MapMode = "FlatFace"
sketch10.AttachmentOffset = App.Placement(Vector(0, 0, -1), App.Rotation())
sketch10.addGeometry(Part.Circle(Vector(50.429072, 22.696962, 0), Vector(0, 0, 1), 6.25), False)
sketch10.addConstraint(Sketcher.Constraint("Diameter", 0, Q("12.5 mm")))
sketch10.addConstraint(Sketcher.Constraint("DistanceX", -1, 1, 0, 3, Q("50.429072 mm")))
sketch10.addConstraint(Sketcher.Constraint("DistanceY", -1, 1, 0, 3, Q("22.696962 mm")))
pad6 = body.newObject("PartDesign::Pad", "Pad005")
pad6.Profile = sketch10
pad6.Length = 12

# Sketch on YZ plane
sketch11 = body.newObject("Sketcher::SketchObject", "Sketch010")
sketch11.AttachmentSupport = (doc.getObject("YZ_Plane"), [""])
sketch11.MapMode = "FlatFace"
sketch11.AttachmentOffset = App.Placement(Vector(0, 0, -7.275145), App.Rotation())
sketch11.addGeometry(Part.LineSegment(Vector(27, 23.402326, 0), Vector(16.1, 23.402326, 0)), False)
sketch11.addGeometry(Part.ArcOfCircle(Part.Circle(Vector(16.1, 12.902326, 0), Vector(0, 0, 1), 10.5), math.radians(90), math.radians(270)), False)
sketch11.addGeometry(Part.LineSegment(Vector(16.1, 2.402326, 0), Vector(27, 2.402326, 0)), False)
sketch11.addGeometry(Part.ArcOfCircle(Part.Circle(Vector(27, 12.902326, 0), Vector(0, 0, 1), 10.5), math.radians(-90), math.radians(90)), False)
sketch11.addConstraint(Sketcher.Constraint("Tangent", 0, 2, 1, 1))
sketch11.addConstraint(Sketcher.Constraint("Tangent", 1, 2, 2, 1))
sketch11.addConstraint(Sketcher.Constraint("Tangent", 2, 2, 3, 1))
sketch11.addConstraint(Sketcher.Constraint("Tangent", 3, 2, 0, 1))
sketch11.addConstraint(Sketcher.Constraint("Horizontal", 0))
sketch11.addConstraint(Sketcher.Constraint("Horizontal", 2))
sketch11.addConstraint(Sketcher.Constraint("Radius", 1, Q("10.5 mm")))
sketch11.addConstraint(Sketcher.Constraint("DistanceX", 0, 2, 0, 1, Q("10.9 mm")))
sketch11.addConstraint(Sketcher.Constraint("DistanceX", -1, 1, 3, 3, Q("27 mm")))
sketch11.addConstraint(Sketcher.Constraint("DistanceY", -1, 1, 1, 3, Q("12.902326 mm")))
pad7 = body.newObject("PartDesign::Pad", "Pad006")
pad7.Profile = sketch11
pad7.Length = 11.5

doc.recompute()
